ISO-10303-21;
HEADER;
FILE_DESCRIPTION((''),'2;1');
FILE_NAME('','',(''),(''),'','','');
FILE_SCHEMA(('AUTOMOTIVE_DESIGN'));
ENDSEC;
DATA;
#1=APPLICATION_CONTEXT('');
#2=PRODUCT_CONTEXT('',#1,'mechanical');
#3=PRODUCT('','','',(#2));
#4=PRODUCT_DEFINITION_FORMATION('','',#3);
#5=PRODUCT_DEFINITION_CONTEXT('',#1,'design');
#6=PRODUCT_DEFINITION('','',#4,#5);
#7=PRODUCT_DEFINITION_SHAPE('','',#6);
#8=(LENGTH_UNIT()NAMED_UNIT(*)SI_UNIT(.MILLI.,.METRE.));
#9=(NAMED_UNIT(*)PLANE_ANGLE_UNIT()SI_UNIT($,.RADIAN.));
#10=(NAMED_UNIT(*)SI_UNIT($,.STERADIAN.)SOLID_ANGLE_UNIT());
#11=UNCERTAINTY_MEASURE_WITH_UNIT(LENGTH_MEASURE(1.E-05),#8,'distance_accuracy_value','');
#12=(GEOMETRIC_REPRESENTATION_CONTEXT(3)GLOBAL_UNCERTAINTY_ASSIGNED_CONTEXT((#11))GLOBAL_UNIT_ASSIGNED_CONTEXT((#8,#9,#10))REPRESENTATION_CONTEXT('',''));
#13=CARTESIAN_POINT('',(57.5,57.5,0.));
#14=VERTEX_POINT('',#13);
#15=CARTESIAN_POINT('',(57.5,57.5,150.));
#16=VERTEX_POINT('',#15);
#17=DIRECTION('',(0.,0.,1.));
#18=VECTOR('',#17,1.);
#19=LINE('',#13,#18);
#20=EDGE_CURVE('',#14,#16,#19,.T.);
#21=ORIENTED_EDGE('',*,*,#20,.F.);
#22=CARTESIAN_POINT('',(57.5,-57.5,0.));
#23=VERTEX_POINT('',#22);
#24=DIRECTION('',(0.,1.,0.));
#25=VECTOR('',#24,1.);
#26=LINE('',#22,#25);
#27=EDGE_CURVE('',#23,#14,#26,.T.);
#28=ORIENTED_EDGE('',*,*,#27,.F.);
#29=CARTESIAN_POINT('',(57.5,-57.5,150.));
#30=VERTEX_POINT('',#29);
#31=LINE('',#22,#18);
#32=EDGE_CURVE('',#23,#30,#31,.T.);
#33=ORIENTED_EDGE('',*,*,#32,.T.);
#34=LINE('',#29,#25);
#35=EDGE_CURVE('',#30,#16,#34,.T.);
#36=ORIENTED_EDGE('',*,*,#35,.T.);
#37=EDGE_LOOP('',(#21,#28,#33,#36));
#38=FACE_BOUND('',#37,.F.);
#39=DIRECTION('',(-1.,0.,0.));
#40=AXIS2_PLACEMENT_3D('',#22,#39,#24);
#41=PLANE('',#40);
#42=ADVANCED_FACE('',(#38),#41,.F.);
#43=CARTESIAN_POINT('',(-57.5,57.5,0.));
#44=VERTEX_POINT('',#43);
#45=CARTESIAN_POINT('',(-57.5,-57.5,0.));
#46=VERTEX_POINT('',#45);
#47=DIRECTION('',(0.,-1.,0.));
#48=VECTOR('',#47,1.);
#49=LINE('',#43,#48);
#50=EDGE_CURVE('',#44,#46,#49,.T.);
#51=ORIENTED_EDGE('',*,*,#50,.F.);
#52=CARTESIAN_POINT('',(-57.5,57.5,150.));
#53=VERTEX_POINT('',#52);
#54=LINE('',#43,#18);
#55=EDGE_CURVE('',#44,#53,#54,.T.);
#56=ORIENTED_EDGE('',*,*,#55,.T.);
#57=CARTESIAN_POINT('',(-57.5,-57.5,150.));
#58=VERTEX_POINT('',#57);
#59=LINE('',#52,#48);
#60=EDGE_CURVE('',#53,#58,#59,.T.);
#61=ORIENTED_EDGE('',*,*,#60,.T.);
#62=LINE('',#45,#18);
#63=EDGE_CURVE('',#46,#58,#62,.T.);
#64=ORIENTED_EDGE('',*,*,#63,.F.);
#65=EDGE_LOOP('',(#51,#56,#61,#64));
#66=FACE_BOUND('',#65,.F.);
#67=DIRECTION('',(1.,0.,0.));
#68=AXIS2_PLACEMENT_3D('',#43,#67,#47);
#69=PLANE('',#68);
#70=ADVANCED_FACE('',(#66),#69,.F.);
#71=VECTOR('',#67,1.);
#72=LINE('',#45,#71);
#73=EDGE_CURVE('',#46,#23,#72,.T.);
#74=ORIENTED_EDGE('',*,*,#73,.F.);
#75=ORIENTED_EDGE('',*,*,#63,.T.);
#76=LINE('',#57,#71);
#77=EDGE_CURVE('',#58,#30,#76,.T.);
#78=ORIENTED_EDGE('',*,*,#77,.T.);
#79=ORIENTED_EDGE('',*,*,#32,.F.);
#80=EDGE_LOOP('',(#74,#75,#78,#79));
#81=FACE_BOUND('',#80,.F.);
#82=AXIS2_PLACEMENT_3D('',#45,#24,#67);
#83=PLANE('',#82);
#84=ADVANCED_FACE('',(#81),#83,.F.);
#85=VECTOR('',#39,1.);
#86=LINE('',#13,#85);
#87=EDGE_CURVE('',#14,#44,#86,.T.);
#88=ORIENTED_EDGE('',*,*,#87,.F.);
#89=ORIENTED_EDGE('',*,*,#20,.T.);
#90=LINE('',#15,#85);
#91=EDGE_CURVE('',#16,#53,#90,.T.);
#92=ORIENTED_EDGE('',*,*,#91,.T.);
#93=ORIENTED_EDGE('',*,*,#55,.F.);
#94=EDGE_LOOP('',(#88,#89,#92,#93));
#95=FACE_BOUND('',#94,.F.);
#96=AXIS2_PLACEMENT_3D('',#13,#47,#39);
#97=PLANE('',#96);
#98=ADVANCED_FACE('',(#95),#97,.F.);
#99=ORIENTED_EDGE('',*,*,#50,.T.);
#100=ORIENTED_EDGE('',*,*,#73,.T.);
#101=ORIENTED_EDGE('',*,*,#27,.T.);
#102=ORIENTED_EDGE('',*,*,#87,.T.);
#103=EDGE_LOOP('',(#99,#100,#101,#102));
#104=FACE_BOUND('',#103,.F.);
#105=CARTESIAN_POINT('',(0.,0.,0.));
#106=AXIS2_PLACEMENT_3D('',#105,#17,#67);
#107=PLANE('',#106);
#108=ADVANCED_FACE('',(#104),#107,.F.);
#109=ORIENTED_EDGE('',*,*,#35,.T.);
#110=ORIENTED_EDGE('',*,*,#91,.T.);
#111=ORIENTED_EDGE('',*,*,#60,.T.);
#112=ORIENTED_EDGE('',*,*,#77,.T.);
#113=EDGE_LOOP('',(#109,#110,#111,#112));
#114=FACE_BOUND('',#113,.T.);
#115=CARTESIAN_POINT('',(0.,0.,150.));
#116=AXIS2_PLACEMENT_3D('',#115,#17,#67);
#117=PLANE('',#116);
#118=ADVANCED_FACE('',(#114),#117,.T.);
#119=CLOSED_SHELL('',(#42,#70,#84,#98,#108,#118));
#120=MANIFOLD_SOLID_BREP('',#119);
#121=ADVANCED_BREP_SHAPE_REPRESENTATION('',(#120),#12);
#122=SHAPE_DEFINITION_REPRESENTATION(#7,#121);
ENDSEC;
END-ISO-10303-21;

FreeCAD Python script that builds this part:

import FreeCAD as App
import Part
import Sketcher

doc = App.newDocument("Part")
params = doc.addObject("Spreadsheet::Sheet", "Params")
for row, (alias, value) in enumerate([
    ("sketch1_width", "115 mm"),
    ("pad1_length", "150 mm"),
], start=1):
    params.set(f"A{row}", alias)
    params.set(f"B{row}", "=" + value)
    params.setAlias(f"B{row}", alias)

body = doc.addObject("PartDesign::Body", "Body")

# Sketch on XY plane
sketch1 = body.newObject("Sketcher::SketchObject", "Sketch")
sketch1.AttachmentSupport = (doc.getObject("XY_Plane"), [""])
sketch1.MapMode = "FlatFace"
sketch1.addGeometry([
    Part.LineSegment(App.Vector(-58, 58, 0), App.Vector(-58, -58, 0)),
    Part.LineSegment(App.Vector(-58, -58, 0), App.Vector(58, -58, 0)),
    Part.LineSegment(App.Vector(58, -58, 0), App.Vector(58, 58, 0)),
    Part.LineSegment(App.Vector(58, 58, 0), App.Vector(-58, 58, 0)),
], False)
sketch1.addConstraint([
    Sketcher.Constraint("Coincident", 0, 2, 1, 1),
    Sketcher.Constraint("Coincident", 1, 2, 2, 1),
    Sketcher.Constraint("Coincident", 2, 2, 3, 1),
    Sketcher.Constraint("Coincident", 3, 2, 0, 1),
    Sketcher.Constraint("Vertical", 0),
    Sketcher.Constraint("Horizontal", 1),
    Sketcher.Constraint("Vertical", 2),
    Sketcher.Constraint("Horizontal", 3),
    Sketcher.Constraint("Symmetric", 0, 2, 2, 2, -1, 1),
    Sketcher.Constraint("Equal", 3, 0),
    Sketcher.Constraint("DistanceX", 1, 1, 1, 2, 115.0),
])
sketch1.setExpression("Constraints[10]", "Params.sketch1_width")
pad1 = body.newObject("PartDesign::Pad", "Pad")
pad1.Profile = sketch1
pad1.setExpression("Length", "Params.pad1_length")

doc.recompute()
